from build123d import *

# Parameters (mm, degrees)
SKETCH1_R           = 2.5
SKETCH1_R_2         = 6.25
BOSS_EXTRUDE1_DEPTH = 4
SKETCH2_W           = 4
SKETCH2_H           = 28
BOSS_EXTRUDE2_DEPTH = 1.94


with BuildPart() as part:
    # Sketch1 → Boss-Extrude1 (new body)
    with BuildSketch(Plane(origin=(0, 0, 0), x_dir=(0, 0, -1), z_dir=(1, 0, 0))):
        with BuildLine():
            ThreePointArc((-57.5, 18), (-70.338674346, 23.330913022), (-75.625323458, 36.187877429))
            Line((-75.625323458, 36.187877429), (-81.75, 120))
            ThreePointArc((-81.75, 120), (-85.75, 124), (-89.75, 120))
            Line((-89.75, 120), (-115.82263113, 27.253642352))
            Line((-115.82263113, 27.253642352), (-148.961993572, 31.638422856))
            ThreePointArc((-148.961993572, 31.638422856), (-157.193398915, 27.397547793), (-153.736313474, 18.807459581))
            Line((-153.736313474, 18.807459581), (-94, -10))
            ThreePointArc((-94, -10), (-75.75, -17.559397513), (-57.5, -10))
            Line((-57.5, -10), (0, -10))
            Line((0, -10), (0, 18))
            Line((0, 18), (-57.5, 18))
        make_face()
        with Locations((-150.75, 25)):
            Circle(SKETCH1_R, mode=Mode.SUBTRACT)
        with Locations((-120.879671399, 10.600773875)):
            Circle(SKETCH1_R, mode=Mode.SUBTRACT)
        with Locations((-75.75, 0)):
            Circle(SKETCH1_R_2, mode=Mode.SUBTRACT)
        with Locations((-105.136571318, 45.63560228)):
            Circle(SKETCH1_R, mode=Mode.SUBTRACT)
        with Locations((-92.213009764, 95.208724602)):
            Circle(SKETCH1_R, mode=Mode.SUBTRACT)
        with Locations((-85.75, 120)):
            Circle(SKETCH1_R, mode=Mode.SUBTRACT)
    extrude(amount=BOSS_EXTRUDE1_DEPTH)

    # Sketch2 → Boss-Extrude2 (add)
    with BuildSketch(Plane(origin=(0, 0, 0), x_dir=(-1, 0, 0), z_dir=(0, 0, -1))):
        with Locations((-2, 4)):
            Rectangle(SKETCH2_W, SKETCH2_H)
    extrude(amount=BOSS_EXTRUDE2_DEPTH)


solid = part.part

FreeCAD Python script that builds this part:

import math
import FreeCAD as App
import Part
import Sketcher
from FreeCAD import Vector

doc = App.newDocument("Part")
body = doc.addObject("PartDesign::Body", "Body")

sketch1 = body.newObject("Sketcher::SketchObject", "Sketch")
sketch1.AttachmentSupport = (doc.getObject("YZ_Plane"), [""])
sketch1.MapMode = "FlatFace"
sketch1.addGeometry([
    Part.ArcOfCircle(Part.Circle(Vector(36.1, 57.5, 0), Vector(0, 0, 1), 18.1), math.radians(90), math.radians(180)),
    Part.LineSegment(Vector(36.2, 75.6, 0), Vector(120, 81.8, 0)),
    Part.ArcOfCircle(Part.Circle(Vector(120, 85.8, 0), Vector(0, 0, 1), 4), math.radians(-90), math.radians(90)),
    Part.LineSegment(Vector(120, 89.8, 0), Vector(27.3, 115.8, 0)),
    Part.LineSegment(Vector(27.3, 115.8, 0), Vector(31.6, 149, 0)),
    Part.ArcOfCircle(Part.Circle(Vector(25, 150.8, 0), Vector(0, 0, 1), 6.9), math.radians(-15), math.radians(154)),
    Part.LineSegment(Vector(18.8, 153.7, 0), Vector(-10, 94, 0)),
    Part.ArcOfCircle(Part.Circle(Vector(8.3, 75.8, 0), Vector(0, 0, 1), 25.8), math.radians(135), math.radians(225)),
    Part.LineSegment(Vector(-10, 57.5, 0), Vector(-10, 0, 0)),
    Part.LineSegment(Vector(-10, 0, 0), Vector(18, 0, 0)),
    Part.LineSegment(Vector(18, 0, 0), Vector(18, 57.5, 0)),
    Part.Circle(Vector(25, 150.8, 0), Vector(0, 0, 1), 2.5),
    Part.Circle(Vector(10.6, 120.9, 0), Vector(0, 0, 1), 2.5),
    Part.Circle(Vector(0, 75.8, 0), Vector(0, 0, 1), 6.2),
    Part.Circle(Vector(45.6, 105.1, 0), Vector(0, 0, 1), 2.5),
    Part.Circle(Vector(95.2, 92.2, 0), Vector(0, 0, 1), 2.5),
    Part.Circle(Vector(120, 85.8, 0), Vector(0, 0, 1), 2.5),
], False)
sketch1.addConstraint([
    Sketcher.Constraint("Coincident", 0, 1, 1, 1),
    Sketcher.Constraint("Coincident", 1, 2, 2, 1),
    Sketcher.Constraint("Coincident", 2, 2, 3, 1),
    Sketcher.Constraint("Coincident", 3, 2, 4, 1),
    Sketcher.Constraint("Coincident", 4, 2, 5, 1),
    Sketcher.Constraint("Tangent", 5, 2, 6, 1),
    Sketcher.Constraint("Coincident", 6, 2, 7, 1),
    Sketcher.Constraint("Coincident", 7, 2, 8, 1),
    Sketcher.Constraint("Coincident", 8, 2, 9, 1),
    Sketcher.Constraint("Coincident", 9, 2, 10, 1),
    Sketcher.Constraint("Tangent", 10, 2, 0, 2),
    Sketcher.Constraint("Vertical", 8),
    Sketcher.Constraint("Horizontal", 9),
    Sketcher.Constraint("Vertical", 10),
    Sketcher.Constraint("Coincident", 11, 3, 5, 3),
    Sketcher.Constraint("Coincident", 16, 3, 2, 3),
    Sketcher.Constraint("Equal", 11, 12),
    Sketcher.Constraint("Equal", 12, 14),
    Sketcher.Constraint("Equal", 14, 15),
    Sketcher.Constraint("Equal", 15, 16),
    Sketcher.Constraint("PointOnObject", 13, 3, -2),
    Sketcher.Constraint("PointOnObject", 8, 2, -1),
    Sketcher.Constraint("Horizontal", 7, 3, 13, 3),
    Sketcher.Constraint("Horizontal", 0, 3, 7, 2),
    Sketcher.Constraint("Vertical", 16, 3, 1, 2),
    Sketcher.Constraint("Vertical", 1, 2, 2, 2),
    Sketcher.Constraint("Vertical", 6, 2, 7, 2),
    Sketcher.Constraint("Diameter", 11, 5.0),
    Sketcher.Constraint("Radius", 2, 4.0),
    Sketcher.Constraint("Diameter", 13, 12.5),
    Sketcher.Constraint("DistanceX", 9, 1, 9, 2, 28.0),
    Sketcher.Constraint("DistanceY", 8, 2, 8, 1, 57.5),
    Sketcher.Constraint("DistanceX", -1, 1, 2, 3, 120.0),
    Sketcher.Constraint("DistanceX", -1, 1, 5, 3, 25.0),
    Sketcher.Constraint("DistanceX", 6, 2, -1, 1, 10.0),
    Sketcher.Constraint("DistanceY", -1, 1, 6, 2, 94.0),
    Sketcher.Constraint("Radius", 5, 6.875),
    Sketcher.Constraint("DistanceY", 2, 3, 5, 3, 65.0),
    Sketcher.Constraint("DistanceY", 7, 3, 5, 3, 75.0),
    Sketcher.Constraint("DistanceX", -1, 1, 7, 3, 8.25),
    Sketcher.Constraint("Radius", 0, 18.125431),
    Sketcher.Constraint("DistanceY", 14, 3, 12, 3, 15.7431),
    Sketcher.Constraint("Distance", 1, 84.035609),
    Sketcher.Constraint("Distance", 3, 96.341419),
    Sketcher.Constraint("DistanceY", -1, 1, 12, 3, 120.879671),
    Sketcher.Constraint("DistanceY", -1, 1, 15, 3, 92.21301),
    Sketcher.Constraint("DistanceY", -1, 1, 3, 2, 115.822631),
    Sketcher.Constraint("DistanceX", 12, 3, 14, 3, 35.034828),
    Sketcher.Constraint("DistanceX", 0, 3, 14, 3, 9.510171),
    Sketcher.Constraint("DistanceX", 12, 3, 15, 3, 84.607951),
    Sketcher.Constraint("DistanceX", 3, 2, 4, 2, 4.384781),
])
pad1 = body.newObject("PartDesign::Pad", "Pad")
pad1.Profile = sketch1
pad1.Length = 4

sketch2 = body.newObject("Sketcher::SketchObject", "Sketch001")
sketch2.AttachmentSupport = (doc.getObject("XY_Plane"), [""])
sketch2.MapMode = "FlatFace"
sketch2.addGeometry([
    Part.LineSegment(Vector(4, 18, 0), Vector(4, -10, 0)),
    Part.LineSegment(Vector(4, -10, 0), Vector(0, -10, 0)),
    Part.LineSegment(Vector(0, -10, 0), Vector(0, 18, 0)),
    Part.LineSegment(Vector(0, 18, 0), Vector(4, 18, 0)),
], False)
sketch2.addConstraint([
    Sketcher.Constraint("Coincident", 0, 2, 1, 1),
    Sketcher.Constraint("Coincident", 1, 2, 2, 1),
    Sketcher.Constraint("Coincident", 2, 2, 3, 1),
    Sketcher.Constraint("Coincident", 3, 2, 0, 1),
    Sketcher.Constraint("Vertical", 0),
    Sketcher.Constraint("Horizontal", 1),
    Sketcher.Constraint("Vertical", 2),
    Sketcher.Constraint("Horizontal", 3),
    Sketcher.Constraint("PointOnObject", 1, 2, -2),
    Sketcher.Constraint("DistanceX", 1, 2, 1, 1, 4.0),
    Sketcher.Constraint("DistanceY", 0, 2, 0, 1, 28.0),
    Sketcher.Constraint("DistanceY", 0, 2, -1, 1, 10.0),
])
pad2 = body.newObject("PartDesign::Pad", "Pad001")
pad2.Profile = sketch2
pad2.Length = 1.94
pad2.Reversed = True

doc.recompute()
